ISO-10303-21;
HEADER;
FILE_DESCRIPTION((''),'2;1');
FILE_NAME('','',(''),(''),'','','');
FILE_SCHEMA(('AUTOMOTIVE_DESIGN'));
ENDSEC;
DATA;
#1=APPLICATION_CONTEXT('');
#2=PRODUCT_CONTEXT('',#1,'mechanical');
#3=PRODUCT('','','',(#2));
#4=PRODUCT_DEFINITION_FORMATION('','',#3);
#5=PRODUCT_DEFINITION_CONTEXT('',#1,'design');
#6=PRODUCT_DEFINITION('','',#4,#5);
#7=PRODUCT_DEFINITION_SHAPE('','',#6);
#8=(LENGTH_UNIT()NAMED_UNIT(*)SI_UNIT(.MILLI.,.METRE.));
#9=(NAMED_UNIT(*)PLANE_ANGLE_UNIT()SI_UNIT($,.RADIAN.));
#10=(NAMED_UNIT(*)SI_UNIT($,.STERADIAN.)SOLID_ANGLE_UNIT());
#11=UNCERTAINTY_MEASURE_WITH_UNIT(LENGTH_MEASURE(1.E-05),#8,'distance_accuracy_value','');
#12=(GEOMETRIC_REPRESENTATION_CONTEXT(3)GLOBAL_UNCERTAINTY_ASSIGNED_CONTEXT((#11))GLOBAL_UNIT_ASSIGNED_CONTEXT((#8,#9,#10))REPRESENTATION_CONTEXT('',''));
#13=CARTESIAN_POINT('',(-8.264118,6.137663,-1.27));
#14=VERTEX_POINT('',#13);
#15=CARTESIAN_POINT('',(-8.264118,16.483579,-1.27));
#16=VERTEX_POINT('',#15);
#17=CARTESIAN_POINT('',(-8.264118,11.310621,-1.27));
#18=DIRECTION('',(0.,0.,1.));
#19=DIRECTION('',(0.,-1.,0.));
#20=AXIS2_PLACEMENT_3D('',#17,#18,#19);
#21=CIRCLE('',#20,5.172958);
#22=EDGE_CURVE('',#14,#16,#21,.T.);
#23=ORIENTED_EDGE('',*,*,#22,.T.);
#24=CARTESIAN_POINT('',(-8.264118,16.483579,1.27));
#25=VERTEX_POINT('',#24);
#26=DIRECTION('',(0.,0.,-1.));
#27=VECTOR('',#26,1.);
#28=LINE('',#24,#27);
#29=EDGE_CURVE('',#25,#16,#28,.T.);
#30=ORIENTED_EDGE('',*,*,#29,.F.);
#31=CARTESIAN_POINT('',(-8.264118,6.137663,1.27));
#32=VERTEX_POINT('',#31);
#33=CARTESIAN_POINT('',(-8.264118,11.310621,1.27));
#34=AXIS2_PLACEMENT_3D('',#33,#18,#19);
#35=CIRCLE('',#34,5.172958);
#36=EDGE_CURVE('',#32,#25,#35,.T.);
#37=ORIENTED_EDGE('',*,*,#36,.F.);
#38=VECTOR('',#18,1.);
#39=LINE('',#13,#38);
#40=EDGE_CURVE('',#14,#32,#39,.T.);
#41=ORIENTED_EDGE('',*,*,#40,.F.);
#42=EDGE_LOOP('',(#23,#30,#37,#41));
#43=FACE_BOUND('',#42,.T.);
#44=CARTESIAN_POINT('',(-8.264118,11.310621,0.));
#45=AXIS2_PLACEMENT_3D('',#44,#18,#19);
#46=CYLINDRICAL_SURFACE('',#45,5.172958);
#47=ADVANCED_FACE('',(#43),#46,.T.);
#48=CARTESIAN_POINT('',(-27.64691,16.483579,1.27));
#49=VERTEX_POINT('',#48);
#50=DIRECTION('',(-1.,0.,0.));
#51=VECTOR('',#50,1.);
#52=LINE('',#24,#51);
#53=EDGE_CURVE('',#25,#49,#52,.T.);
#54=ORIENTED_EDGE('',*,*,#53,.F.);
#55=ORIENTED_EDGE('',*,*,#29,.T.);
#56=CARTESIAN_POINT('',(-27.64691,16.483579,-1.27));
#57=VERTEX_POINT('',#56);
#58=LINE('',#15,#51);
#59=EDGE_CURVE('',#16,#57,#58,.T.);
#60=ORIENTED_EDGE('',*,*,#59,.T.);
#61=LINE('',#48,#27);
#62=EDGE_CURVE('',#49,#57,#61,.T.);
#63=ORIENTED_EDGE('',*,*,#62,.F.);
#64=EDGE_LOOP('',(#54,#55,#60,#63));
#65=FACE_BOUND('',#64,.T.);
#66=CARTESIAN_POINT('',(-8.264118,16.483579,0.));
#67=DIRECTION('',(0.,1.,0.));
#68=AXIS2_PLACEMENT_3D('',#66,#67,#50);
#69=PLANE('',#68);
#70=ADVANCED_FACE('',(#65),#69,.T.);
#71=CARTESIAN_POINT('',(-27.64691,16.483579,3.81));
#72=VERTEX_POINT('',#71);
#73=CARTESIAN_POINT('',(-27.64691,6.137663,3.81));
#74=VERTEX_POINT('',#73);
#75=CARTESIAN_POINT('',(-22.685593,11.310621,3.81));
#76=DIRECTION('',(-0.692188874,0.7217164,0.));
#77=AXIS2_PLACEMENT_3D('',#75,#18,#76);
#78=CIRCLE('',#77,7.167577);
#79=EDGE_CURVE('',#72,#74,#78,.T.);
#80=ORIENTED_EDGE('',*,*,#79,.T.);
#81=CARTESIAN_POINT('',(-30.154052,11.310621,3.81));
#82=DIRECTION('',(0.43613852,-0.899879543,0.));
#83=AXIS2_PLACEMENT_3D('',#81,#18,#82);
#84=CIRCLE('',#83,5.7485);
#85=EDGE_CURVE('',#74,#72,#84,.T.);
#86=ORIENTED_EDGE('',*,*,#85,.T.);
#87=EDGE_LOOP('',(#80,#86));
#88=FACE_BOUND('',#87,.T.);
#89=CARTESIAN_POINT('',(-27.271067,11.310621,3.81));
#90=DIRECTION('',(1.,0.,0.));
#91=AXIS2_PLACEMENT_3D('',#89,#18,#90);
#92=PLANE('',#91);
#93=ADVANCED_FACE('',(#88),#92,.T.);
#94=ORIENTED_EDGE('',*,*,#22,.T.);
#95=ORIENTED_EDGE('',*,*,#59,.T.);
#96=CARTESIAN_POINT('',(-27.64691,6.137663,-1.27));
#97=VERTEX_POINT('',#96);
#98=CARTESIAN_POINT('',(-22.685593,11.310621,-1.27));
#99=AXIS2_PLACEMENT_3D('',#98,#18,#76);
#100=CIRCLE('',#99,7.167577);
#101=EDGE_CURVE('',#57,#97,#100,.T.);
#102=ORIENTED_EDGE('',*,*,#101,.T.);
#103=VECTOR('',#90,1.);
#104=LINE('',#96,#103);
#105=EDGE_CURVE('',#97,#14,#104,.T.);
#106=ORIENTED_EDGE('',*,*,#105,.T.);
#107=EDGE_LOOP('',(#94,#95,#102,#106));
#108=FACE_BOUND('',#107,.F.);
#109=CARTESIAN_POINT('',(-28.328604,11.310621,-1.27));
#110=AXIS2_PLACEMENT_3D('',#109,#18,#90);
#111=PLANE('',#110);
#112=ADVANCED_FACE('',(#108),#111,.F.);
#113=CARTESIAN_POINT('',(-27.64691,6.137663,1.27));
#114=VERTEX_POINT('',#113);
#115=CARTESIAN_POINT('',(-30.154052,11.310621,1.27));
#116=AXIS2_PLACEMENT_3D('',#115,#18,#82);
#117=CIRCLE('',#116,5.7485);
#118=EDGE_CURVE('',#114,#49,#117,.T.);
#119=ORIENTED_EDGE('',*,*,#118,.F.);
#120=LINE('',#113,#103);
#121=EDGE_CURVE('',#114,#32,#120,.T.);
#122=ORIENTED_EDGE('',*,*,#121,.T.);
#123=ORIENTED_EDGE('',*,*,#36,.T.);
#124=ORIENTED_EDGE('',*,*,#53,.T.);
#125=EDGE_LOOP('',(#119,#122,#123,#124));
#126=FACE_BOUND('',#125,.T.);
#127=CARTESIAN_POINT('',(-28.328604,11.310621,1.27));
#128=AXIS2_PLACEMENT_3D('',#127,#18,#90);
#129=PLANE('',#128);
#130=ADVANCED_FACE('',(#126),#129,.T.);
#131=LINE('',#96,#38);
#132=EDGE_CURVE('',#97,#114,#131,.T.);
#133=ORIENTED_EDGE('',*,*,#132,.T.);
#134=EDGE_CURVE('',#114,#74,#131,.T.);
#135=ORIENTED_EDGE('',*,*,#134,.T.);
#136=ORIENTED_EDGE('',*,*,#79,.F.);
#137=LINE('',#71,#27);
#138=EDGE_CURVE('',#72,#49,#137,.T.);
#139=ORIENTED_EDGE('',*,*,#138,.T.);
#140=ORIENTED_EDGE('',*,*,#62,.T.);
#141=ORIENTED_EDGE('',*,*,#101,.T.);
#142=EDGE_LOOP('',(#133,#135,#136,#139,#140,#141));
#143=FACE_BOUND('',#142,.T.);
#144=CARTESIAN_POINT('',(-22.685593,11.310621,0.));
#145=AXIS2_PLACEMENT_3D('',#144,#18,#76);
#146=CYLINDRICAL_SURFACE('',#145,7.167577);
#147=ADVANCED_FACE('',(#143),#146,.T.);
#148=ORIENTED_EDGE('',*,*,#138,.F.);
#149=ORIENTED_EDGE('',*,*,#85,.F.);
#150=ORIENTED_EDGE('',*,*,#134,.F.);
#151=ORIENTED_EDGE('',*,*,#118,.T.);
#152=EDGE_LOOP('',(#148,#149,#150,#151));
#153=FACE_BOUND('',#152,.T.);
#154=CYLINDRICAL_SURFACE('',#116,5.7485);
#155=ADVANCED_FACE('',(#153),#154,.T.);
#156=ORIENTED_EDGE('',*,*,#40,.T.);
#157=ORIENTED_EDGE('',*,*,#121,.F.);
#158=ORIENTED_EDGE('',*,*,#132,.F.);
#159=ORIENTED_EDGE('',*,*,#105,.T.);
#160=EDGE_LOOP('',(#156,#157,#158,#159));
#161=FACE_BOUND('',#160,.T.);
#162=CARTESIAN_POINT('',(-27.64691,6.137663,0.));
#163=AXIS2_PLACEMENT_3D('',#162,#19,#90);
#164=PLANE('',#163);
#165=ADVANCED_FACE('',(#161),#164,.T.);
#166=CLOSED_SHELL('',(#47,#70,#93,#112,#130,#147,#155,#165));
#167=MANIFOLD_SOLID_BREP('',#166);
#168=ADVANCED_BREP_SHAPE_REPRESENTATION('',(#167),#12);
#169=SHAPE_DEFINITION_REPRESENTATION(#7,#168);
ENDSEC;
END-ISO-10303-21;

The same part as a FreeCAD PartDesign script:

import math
import FreeCAD as App
import Part
import Sketcher
from FreeCAD import Vector
Q = App.Units.Quantity

doc = App.newDocument("Part")
body = doc.addObject("PartDesign::Body", "Body")

# Sketch on XY plane
sketch1 = body.newObject("Sketcher::SketchObject", "Sketch")
sketch1.AttachmentSupport = (doc.getObject("XY_Plane"), [""])
sketch1.MapMode = "FlatFace"
sketch1.addGeometry([
    Part.ArcOfCircle(Part.Circle(Vector(-23, 11, 0), Vector(0, 0, 1), 7), math.radians(134), math.radians(226)),
    Part.LineSegment(Vector(-28, 6, 0), Vector(-8, 6, 0)),
    Part.ArcOfCircle(Part.Circle(Vector(-8, 11, 0), Vector(0, 0, 1), 5), math.radians(-90), math.radians(90)),
    Part.LineSegment(Vector(-8, 16, 0), Vector(-28, 16, 0)),
], False)
sketch1.addConstraint([
    Sketcher.Constraint("Coincident", 0, 2, 1, 1),
    Sketcher.Constraint("Tangent", 1, 2, 2, 1),
    Sketcher.Constraint("Tangent", 2, 2, 3, 1),
    Sketcher.Constraint("Coincident", 3, 2, 0, 1),
    Sketcher.Constraint("Horizontal", 1),
    Sketcher.Constraint("Horizontal", 3),
    Sketcher.Constraint("Horizontal", 0, 3, 2, 3),
    Sketcher.Constraint("Radius", 2, Q("5.172958 mm")),
    Sketcher.Constraint("DistanceY", -1, 1, 0, 3, Q("0.4453 in")),
    Sketcher.Constraint("Radius", 0, Q("7.167577 mm")),
    Sketcher.Constraint("DistanceX", 1, 1, 1, 2, Q("19.382792 mm")),
    Sketcher.Constraint("DistanceX", 0, 2, -1, 1, Q("27.64691 mm")),
])
pad1 = body.newObject("PartDesign::Pad", "Pad")
pad1.Profile = sketch1
pad1.Length = Q("0.1 in")
pad1.Midplane = True

# Sketch on XY plane
sketch2 = body.newObject("Sketcher::SketchObject", "Sketch001")
sketch2.AttachmentSupport = (doc.getObject("XY_Plane"), [""])
sketch2.MapMode = "FlatFace"
sketch2.AttachmentOffset = App.Placement(Vector(0, 0, 0.05 * 25.4), App.Rotation())
sketch2.addGeometry([
    Part.ArcOfCircle(Part.Circle(Vector(-23, 11, 0), Vector(0, 0, 1), 7), math.radians(134), math.radians(226)),
    Part.ArcOfCircle(Part.Circle(Vector(-30, 11, 0), Vector(0, 0, 1), 6), math.radians(-64), math.radians(64)),
], False)
sketch2.addConstraint([
    Sketcher.Constraint("Coincident", 0, 1, 1, 2),
    Sketcher.Constraint("Coincident", 1, 1, 0, 2),
    Sketcher.Constraint("Horizontal", 0, 3, 1, 3),
    Sketcher.Constraint("Radius", 1, Q("5.7485 mm")),
    Sketcher.Constraint("DistanceY", -1, 1, 0, 3, Q("0.4453 in")),
    Sketcher.Constraint("Radius", 0, Q("7.167577 mm")),
    Sketcher.Constraint("DistanceX", 0, 1, -1, 1, Q("27.64691 mm")),
    Sketcher.Constraint("DistanceY", -1, 1, 0, 1, Q("16.483579 mm")),
])
pad2 = body.newObject("PartDesign::Pad", "Pad001")
pad2.Profile = sketch2
pad2.Length = Q("0.2 in")
pad2.Midplane = True

doc.recompute()
